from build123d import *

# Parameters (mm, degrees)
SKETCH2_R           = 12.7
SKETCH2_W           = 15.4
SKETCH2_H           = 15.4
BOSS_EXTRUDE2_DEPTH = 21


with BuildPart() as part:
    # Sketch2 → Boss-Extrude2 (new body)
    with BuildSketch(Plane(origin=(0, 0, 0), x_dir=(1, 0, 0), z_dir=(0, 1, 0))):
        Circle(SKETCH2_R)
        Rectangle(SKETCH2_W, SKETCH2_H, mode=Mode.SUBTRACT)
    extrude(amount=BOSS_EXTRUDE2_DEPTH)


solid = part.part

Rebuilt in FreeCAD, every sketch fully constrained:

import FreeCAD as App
import Part
import Sketcher
Q = App.Units.Quantity


def add_polygon(sketch, points):
    """Adds a closed chain of lines whose ends are joined by coincident constraints."""
    first, n = sketch.GeometryCount, len(points)
    for a, b in zip(points, points[1:] + points[:1]):
        sketch.addGeometry(Part.LineSegment(App.Vector(*a, 0), App.Vector(*b, 0)), False)
    for i in range(n):
        sketch.addConstraint(Sketcher.Constraint("Coincident", first + i, 2, first + (i + 1) % n, 1))

doc = App.newDocument("Part")
body = doc.addObject("PartDesign::Body", "Body")

# Sketch on XZ plane
sketch1 = body.newObject("Sketcher::SketchObject", "Sketch")
sketch1.AttachmentSupport = (doc.getObject("XZ_Plane"), [""])
sketch1.MapMode = "FlatFace"
sketch1.addGeometry(Part.Circle(App.Vector(0, 0, 0), App.Vector(0, 0, 1), 13), False)  # 0
add_polygon(sketch1, [(8, 8), (-8, 8), (-8, -8), (8, -8)])  # lines 1-4
sketch1.addConstraint([
    Sketcher.Constraint("Horizontal", 1),
    Sketcher.Constraint("Vertical", 2),
    Sketcher.Constraint("Horizontal", 3),
    Sketcher.Constraint("Vertical", 4),
    Sketcher.Constraint("Coincident", 0, 3, -1, 1),
    Sketcher.Constraint("Symmetric", 1, 2, 3, 2, -1, 1),
    Sketcher.Constraint("Equal", 3, 2),
    Sketcher.Constraint("Diameter", 0, Q("25.4 mm")),
    Sketcher.Constraint("DistanceX", 1, 2, 1, 1, Q("15.4 mm")),
])
pad1 = body.newObject("PartDesign::Pad", "Pad")
pad1.Profile = sketch1
pad1.Length = 21
pad1.Reversed = True

doc.recompute()
